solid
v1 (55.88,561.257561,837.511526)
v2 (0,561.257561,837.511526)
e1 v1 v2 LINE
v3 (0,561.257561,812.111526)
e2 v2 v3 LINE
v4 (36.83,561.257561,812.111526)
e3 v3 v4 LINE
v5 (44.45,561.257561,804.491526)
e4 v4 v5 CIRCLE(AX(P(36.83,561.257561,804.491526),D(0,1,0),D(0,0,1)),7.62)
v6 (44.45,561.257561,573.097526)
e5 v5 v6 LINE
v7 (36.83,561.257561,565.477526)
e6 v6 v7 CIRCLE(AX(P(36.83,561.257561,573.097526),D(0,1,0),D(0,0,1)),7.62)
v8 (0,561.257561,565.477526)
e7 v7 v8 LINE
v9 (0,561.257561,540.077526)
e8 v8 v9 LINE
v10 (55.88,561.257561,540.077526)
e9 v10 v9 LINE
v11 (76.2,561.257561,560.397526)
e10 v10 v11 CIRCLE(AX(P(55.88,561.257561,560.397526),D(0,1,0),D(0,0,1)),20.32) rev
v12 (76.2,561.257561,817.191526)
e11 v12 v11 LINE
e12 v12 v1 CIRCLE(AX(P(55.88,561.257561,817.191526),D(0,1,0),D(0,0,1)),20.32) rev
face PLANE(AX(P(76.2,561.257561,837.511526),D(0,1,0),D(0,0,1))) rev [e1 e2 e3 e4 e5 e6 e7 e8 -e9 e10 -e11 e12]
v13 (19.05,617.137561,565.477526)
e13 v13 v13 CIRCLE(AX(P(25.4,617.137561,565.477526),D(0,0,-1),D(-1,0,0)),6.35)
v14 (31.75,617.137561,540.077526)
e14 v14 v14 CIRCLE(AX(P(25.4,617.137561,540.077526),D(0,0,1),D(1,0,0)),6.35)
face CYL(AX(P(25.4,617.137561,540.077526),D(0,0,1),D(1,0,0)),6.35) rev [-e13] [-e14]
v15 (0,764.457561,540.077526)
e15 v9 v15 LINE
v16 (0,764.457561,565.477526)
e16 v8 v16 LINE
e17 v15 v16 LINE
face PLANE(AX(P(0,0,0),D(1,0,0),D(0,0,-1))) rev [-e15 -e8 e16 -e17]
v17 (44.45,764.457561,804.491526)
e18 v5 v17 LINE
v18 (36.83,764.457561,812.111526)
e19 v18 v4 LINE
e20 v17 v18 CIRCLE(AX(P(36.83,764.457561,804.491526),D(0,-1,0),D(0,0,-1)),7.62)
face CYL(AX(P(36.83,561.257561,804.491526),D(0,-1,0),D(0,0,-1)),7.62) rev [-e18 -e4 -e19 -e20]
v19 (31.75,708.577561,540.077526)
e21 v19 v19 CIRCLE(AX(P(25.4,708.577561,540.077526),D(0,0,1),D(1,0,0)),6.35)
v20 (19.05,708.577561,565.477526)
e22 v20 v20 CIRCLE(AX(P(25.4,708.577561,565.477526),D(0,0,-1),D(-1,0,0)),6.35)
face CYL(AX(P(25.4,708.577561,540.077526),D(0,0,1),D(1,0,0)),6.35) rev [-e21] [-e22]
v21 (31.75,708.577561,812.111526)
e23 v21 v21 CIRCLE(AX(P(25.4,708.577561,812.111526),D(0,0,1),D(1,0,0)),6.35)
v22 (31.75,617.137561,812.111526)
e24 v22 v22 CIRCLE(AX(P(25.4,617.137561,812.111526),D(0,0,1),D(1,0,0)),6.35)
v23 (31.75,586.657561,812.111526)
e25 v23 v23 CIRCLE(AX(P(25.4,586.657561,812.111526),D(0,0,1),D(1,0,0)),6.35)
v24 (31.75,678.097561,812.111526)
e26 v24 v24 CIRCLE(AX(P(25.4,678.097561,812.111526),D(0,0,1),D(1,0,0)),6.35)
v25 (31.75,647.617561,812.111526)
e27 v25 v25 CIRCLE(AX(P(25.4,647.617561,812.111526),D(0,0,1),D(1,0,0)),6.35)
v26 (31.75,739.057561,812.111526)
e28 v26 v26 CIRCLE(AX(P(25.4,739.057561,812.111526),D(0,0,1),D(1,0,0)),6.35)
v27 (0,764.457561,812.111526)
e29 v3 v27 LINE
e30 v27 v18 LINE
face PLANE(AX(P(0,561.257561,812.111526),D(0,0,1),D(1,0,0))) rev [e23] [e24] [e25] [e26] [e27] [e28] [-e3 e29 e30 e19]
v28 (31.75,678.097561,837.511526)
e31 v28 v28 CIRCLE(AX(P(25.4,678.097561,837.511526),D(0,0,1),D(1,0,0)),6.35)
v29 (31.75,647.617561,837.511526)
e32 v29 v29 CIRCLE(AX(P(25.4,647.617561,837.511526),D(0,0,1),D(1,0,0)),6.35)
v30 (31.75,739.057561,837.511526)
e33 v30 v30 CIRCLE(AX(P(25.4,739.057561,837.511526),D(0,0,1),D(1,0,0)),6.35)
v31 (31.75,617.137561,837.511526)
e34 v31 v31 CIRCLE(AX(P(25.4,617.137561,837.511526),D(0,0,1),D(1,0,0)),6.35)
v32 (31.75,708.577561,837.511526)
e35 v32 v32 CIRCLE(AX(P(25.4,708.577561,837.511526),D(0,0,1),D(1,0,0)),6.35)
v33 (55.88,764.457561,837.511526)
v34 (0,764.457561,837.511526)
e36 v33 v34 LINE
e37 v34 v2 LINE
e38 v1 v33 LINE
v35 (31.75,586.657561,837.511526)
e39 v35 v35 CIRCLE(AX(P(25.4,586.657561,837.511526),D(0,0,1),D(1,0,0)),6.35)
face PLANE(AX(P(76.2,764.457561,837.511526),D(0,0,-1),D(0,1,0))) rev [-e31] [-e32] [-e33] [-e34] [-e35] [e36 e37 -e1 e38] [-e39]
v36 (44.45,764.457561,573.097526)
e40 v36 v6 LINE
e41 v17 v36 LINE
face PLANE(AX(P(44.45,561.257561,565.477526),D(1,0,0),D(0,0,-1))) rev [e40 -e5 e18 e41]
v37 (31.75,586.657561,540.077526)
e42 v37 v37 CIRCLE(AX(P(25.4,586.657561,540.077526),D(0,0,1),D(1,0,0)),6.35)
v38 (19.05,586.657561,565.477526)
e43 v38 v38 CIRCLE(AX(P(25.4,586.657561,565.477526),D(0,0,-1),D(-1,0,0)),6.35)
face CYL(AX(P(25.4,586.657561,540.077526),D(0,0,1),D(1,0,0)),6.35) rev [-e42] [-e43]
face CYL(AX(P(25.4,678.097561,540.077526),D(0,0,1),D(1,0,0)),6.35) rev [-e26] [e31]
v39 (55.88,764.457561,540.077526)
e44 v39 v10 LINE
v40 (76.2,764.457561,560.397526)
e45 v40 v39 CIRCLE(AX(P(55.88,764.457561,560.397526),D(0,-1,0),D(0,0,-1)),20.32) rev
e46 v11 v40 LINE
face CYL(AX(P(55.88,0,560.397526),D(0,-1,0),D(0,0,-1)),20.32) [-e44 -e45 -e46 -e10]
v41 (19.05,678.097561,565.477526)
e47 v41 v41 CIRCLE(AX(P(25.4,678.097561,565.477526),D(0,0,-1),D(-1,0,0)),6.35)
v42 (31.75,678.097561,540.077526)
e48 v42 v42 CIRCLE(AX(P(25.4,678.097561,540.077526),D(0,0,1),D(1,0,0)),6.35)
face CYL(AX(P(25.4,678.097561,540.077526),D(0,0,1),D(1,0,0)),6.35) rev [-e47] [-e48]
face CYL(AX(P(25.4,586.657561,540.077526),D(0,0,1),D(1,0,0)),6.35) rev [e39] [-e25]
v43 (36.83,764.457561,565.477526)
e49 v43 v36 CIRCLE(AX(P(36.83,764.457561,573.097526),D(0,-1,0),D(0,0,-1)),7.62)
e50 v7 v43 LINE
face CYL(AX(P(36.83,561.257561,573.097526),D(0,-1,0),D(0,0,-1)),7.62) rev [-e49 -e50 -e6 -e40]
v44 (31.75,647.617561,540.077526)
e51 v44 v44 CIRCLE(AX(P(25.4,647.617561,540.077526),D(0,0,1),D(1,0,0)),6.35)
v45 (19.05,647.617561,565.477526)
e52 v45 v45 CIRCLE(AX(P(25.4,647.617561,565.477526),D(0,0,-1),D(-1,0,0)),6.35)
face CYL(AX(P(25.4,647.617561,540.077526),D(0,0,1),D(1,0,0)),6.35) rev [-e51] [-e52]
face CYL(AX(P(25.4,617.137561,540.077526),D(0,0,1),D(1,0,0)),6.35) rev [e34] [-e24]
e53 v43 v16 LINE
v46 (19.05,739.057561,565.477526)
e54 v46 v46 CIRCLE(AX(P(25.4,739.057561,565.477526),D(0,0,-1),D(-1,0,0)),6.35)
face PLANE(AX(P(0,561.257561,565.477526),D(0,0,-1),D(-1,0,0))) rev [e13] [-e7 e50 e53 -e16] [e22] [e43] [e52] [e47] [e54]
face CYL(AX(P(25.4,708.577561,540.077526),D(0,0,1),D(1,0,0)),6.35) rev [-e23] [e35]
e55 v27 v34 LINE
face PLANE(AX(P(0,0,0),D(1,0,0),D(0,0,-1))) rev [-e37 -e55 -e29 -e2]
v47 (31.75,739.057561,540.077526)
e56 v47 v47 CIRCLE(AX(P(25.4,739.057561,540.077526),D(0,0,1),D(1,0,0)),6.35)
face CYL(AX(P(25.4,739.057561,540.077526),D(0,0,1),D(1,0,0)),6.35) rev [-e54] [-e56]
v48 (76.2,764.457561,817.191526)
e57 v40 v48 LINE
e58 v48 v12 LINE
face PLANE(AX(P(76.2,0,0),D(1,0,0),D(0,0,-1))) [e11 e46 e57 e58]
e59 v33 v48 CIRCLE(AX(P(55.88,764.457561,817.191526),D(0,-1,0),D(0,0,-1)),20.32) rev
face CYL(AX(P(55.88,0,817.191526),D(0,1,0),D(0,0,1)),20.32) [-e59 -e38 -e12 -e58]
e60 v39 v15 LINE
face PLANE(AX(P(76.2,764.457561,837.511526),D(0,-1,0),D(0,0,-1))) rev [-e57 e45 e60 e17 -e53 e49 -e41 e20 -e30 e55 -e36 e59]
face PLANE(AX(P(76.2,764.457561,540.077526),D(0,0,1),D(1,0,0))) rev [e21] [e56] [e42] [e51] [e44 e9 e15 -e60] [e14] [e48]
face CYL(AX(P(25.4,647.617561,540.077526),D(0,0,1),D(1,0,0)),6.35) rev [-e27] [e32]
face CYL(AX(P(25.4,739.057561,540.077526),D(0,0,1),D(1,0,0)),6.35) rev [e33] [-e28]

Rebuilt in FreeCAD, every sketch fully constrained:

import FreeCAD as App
import Part
import Sketcher
Q = App.Units.Quantity


def edges_at(feature, points):
    """Names of the edges that pass closest to the given points."""
    edges = feature.Shape.Edges
    near = lambda p: min(range(len(edges)), key=lambda i: edges[i].distToShape(Part.Vertex(*p))[0])
    return sorted({f"Edge{near(p) + 1}" for p in points})

doc = App.newDocument("Part")
params = doc.addObject("Spreadsheet::Sheet", "Params")
for row, (alias, value) in enumerate([
    ("sketch1_width", "8 in"),
    ("sketch1_height", "11.71 in"),
    ("pad1_length", "3 in"),
    ("sketch2_width", "1.75 in"),
    ("sketch2_height", "9.71 in"),
    ("sketch3_diameter", "0.5 in"),
    ("fillet_radius", "0.8 in"),
    ("fillet2_radius", "0.3 in"),
], start=1):
    params.set(f"A{row}", alias)
    params.set(f"B{row}", "=" + value)
    params.setAlias(f"B{row}", alias)

body = doc.addObject("PartDesign::Body", "Body")

# Sketch on YZ plane
sketch1 = body.newObject("Sketcher::SketchObject", "Sketch")
sketch1.AttachmentSupport = (doc.getObject("YZ_Plane"), [""])
sketch1.MapMode = "FlatFace"
sketch1.addGeometry([
    Part.LineSegment(App.Vector(764, 838, 0), App.Vector(561, 838, 0)),
    Part.LineSegment(App.Vector(561, 838, 0), App.Vector(561, 540, 0)),
    Part.LineSegment(App.Vector(561, 540, 0), App.Vector(764, 540, 0)),
    Part.LineSegment(App.Vector(764, 540, 0), App.Vector(764, 838, 0)),
], False)
sketch1.addConstraint([
    Sketcher.Constraint("Coincident", 0, 2, 1, 1),
    Sketcher.Constraint("Coincident", 1, 2, 2, 1),
    Sketcher.Constraint("Coincident", 2, 2, 3, 1),
    Sketcher.Constraint("Coincident", 3, 2, 0, 1),
    Sketcher.Constraint("Horizontal", 0),
    Sketcher.Constraint("Vertical", 1),
    Sketcher.Constraint("Horizontal", 2),
    Sketcher.Constraint("Vertical", 3),
    Sketcher.Constraint("DistanceX", 0, 2, 0, 1, Q("8 in")),
    Sketcher.Constraint("DistanceY", 1, 2, 1, 1, Q("11.71 in")),
    Sketcher.Constraint("DistanceX", -1, 1, 0, 2, Q("561.257561 mm")),
    Sketcher.Constraint("DistanceY", -1, 1, 0, 2, Q("837.511526 mm")),
])
sketch1.setExpression("Constraints[8]", "Params.sketch1_width")
sketch1.setExpression("Constraints[9]", "Params.sketch1_height")
pad1 = body.newObject("PartDesign::Pad", "Pad")
pad1.Profile = sketch1
pad1.setExpression("Length", "Params.pad1_length")

# Sketch on XZ plane
sketch2 = body.newObject("Sketcher::SketchObject", "Sketch001")
sketch2.AttachmentSupport = (doc.getObject("XZ_Plane"), [""])
sketch2.MapMode = "FlatFace"
sketch2.AttachmentOffset = App.Placement(App.Vector(0, 0, -764.457561), App.Rotation())
sketch2.addGeometry([
    Part.LineSegment(App.Vector(0, 565, 0), App.Vector(0, 812, 0)),
    Part.LineSegment(App.Vector(0, 812, 0), App.Vector(44, 812, 0)),
    Part.LineSegment(App.Vector(44, 812, 0), App.Vector(44, 565, 0)),
    Part.LineSegment(App.Vector(44, 565, 0), App.Vector(0, 565, 0)),
], False)
sketch2.addConstraint([
    Sketcher.Constraint("Coincident", 0, 2, 1, 1),
    Sketcher.Constraint("Coincident", 1, 2, 2, 1),
    Sketcher.Constraint("Coincident", 2, 2, 3, 1),
    Sketcher.Constraint("Coincident", 3, 2, 0, 1),
    Sketcher.Constraint("Vertical", 0),
    Sketcher.Constraint("Horizontal", 1),
    Sketcher.Constraint("Vertical", 2),
    Sketcher.Constraint("Horizontal", 3),
    Sketcher.Constraint("PointOnObject", 0, 2, -2),
    Sketcher.Constraint("DistanceX", 1, 1, 1, 2, Q("1.75 in")),
    Sketcher.Constraint("DistanceY", 0, 1, 0, 2, Q("9.71 in")),
    Sketcher.Constraint("DistanceY", -1, 1, 0, 2, Q("812.111526 mm")),
])
sketch2.setExpression("Constraints[9]", "Params.sketch2_width")
sketch2.setExpression("Constraints[10]", "Params.sketch2_height")
pocket1 = body.newObject("PartDesign::Pocket", "Pocket")
pocket1.Profile = sketch2
pocket1.Type = "ThroughAll"
pocket1.Reversed = True

# Sketch on XY plane
sketch3 = body.newObject("Sketcher::SketchObject", "Sketch002")
sketch3.AttachmentSupport = (doc.getObject("XY_Plane"), [""])
sketch3.MapMode = "FlatFace"
sketch3.AttachmentOffset = App.Placement(App.Vector(0, 0, 837.511526), App.Rotation())
sketch3.addGeometry([
    Part.Circle(App.Vector(25, 739, 0), App.Vector(0, 0, 1), 6),  # 0
    Part.Circle(App.Vector(25, 709, 0), App.Vector(0, 0, 1), 6),  # 1
    Part.Circle(App.Vector(25, 678, 0), App.Vector(0, 0, 1), 6),  # 2
    Part.Circle(App.Vector(25, 648, 0), App.Vector(0, 0, 1), 6),  # 3
    Part.Circle(App.Vector(25, 617, 0), App.Vector(0, 0, 1), 6),  # 4
    Part.Circle(App.Vector(25, 587, 0), App.Vector(0, 0, 1), 6),  # 5
], False)
sketch3.addConstraint([
    Sketcher.Constraint("Equal", 0, 1),
    Sketcher.Constraint("Equal", 1, 2),
    Sketcher.Constraint("Equal", 2, 3),
    Sketcher.Constraint("Equal", 3, 4),
    Sketcher.Constraint("Equal", 4, 5),
    Sketcher.Constraint("Vertical", 0, 3, 1, 3),
    Sketcher.Constraint("Vertical", 1, 3, 2, 3),
    Sketcher.Constraint("Vertical", 2, 3, 3, 3),
    Sketcher.Constraint("Vertical", 3, 3, 4, 3),
    Sketcher.Constraint("Vertical", 4, 3, 5, 3),
    Sketcher.Constraint("Diameter", 0, Q("0.5 in")),
    Sketcher.Constraint("DistanceX", -1, 1, 0, 3, Q("1 in")),
    Sketcher.Constraint("DistanceY", 5, 3, 0, 3, Q("6 in")),
    Sketcher.Constraint("DistanceY", 1, 3, 0, 3, Q("1.2 in")),
    Sketcher.Constraint("DistanceY", 2, 3, 1, 3, Q("1.2 in")),
    Sketcher.Constraint("DistanceY", 3, 3, 2, 3, Q("1.2 in")),
    Sketcher.Constraint("DistanceY", 4, 3, 3, 3, Q("1.2 in")),
    Sketcher.Constraint("DistanceY", -1, 1, 0, 3, Q("739.057561 mm")),
])
sketch3.setExpression("Constraints[10]", "Params.sketch3_diameter")
pocket2 = body.newObject("PartDesign::Pocket", "Pocket001")
pocket2.Profile = sketch3
pocket2.Type = "ThroughAll"
doc.recompute()

fillet = body.newObject("PartDesign::Fillet", "Fillet")
fillet.Base = (pocket2, edges_at(pocket2, [(76.2, 662.858, 540.078), (76.2, 662.858, 837.512)]))
fillet.setExpression("Radius", "Params.fillet_radius")
doc.recompute()

fillet2 = body.newObject("PartDesign::Fillet", "Fillet001")
fillet2.Base = (fillet, edges_at(fillet, [(44.45, 662.858, 565.478), (44.45, 662.858, 812.112)]))
fillet2.setExpression("Radius", "Params.fillet2_radius")

doc.recompute()
